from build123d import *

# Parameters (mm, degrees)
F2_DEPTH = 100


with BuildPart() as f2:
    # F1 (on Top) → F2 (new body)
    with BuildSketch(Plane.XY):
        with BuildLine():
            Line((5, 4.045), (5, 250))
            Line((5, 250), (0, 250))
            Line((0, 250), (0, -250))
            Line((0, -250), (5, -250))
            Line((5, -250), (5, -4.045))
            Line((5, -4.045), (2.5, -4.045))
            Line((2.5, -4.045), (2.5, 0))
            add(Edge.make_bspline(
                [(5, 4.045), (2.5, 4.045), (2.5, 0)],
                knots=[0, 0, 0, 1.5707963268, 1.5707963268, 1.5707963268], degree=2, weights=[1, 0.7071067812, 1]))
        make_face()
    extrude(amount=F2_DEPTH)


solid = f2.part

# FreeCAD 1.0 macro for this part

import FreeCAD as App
import Part
import Sketcher

doc = App.newDocument("Part")
body = doc.addObject("PartDesign::Body", "Body")

# Sketch on XY plane
sketch1 = body.newObject("Sketcher::SketchObject", "Sketch")
sketch1.AttachmentSupport = (doc.getObject("XY_Plane"), [""])
sketch1.MapMode = "FlatFace"
sketch1.addGeometry([
    Part.LineSegment(App.Vector(5, 4.045, 0), App.Vector(5, 250, 0)),  # 0
    Part.LineSegment(App.Vector(5, 250, 0), App.Vector(0, 250, 0)),  # 1
    Part.LineSegment(App.Vector(0, 250, 0), App.Vector(0, -250, 0)),  # 2
    Part.LineSegment(App.Vector(0, -250, 0), App.Vector(5, -250, 0)),  # 3
    Part.LineSegment(App.Vector(5, -250, 0), App.Vector(5, -4.045, 0)),  # 4
    Part.LineSegment(App.Vector(5, -4.045, 0), App.Vector(2.5, -4.045, 0)),  # 5
    Part.LineSegment(App.Vector(2.5, -4.045, 0), App.Vector(2.5, 0, 0)),  # 6
    Part.BSplineCurve([App.Vector(5, 4.045, 0), App.Vector(2.5, 4.045, 0), App.Vector(2.5, 0, 0)], [3, 3], [0, 1.570796327], False, 2, [1, 0.707106781, 1], False),  # 7
], False)
sketch1.addConstraint([
    Sketcher.Constraint("Block", 7),
    Sketcher.Constraint("Coincident", 0, 2, 1, 1),
    Sketcher.Constraint("Coincident", 1, 2, 2, 1),
    Sketcher.Constraint("Coincident", 2, 2, 3, 1),
    Sketcher.Constraint("Coincident", 3, 2, 4, 1),
    Sketcher.Constraint("Coincident", 4, 2, 5, 1),
    Sketcher.Constraint("Coincident", 5, 2, 6, 1),
    Sketcher.Constraint("Coincident", 6, 2, 7, 2),
    Sketcher.Constraint("Coincident", 7, 1, 0, 1),
    Sketcher.Constraint("Vertical", 0),
    Sketcher.Constraint("Horizontal", 1),
    Sketcher.Constraint("Vertical", 2),
    Sketcher.Constraint("Horizontal", 3),
    Sketcher.Constraint("Vertical", 4),
    Sketcher.Constraint("Horizontal", 5),
    Sketcher.Constraint("Vertical", 6),
    Sketcher.Constraint("Symmetric", 1, 2, 2, 2, -1, 1),
    Sketcher.Constraint("Vertical", 0, 2, 3, 2),
    Sketcher.Constraint("Equal", 0, 4),
    Sketcher.Constraint("DistanceY", 2, 2, 2, 1, 500.0),
])
pad1 = body.newObject("PartDesign::Pad", "Pad")
pad1.Profile = sketch1
pad1.Length = 100

doc.recompute()
